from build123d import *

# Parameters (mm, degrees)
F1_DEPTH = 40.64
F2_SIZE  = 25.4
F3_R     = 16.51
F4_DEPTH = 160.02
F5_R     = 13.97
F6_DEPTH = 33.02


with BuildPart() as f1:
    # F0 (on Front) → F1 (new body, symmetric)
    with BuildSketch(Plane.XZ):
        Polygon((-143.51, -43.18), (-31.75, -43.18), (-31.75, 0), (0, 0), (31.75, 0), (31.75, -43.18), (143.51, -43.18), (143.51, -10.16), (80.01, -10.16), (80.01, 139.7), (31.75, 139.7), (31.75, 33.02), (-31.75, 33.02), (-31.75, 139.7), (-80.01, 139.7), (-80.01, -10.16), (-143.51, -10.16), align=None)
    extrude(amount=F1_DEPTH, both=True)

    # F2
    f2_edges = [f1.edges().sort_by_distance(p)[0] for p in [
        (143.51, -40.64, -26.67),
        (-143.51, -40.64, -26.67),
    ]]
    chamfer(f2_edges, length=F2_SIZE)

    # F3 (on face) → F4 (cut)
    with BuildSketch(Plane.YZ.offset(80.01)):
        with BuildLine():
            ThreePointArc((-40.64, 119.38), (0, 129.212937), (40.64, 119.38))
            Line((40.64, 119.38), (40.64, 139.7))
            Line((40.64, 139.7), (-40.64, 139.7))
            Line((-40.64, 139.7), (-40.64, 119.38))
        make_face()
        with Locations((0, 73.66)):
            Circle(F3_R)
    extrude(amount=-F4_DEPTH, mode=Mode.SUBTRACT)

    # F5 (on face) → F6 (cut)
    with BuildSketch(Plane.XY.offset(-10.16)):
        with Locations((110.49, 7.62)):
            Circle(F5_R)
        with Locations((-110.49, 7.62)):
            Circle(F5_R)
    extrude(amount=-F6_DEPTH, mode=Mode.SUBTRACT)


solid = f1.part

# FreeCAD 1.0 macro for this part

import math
import FreeCAD as App
import Part
import Sketcher

V = App.Vector
Q = App.Units.Quantity


def edges_at(feature, points):
    """Names of the edges that pass closest to the given points."""
    edges = feature.Shape.Edges
    near = lambda p: min(range(len(edges)), key=lambda i: edges[i].distToShape(Part.Vertex(*p))[0])
    return sorted({f"Edge{near(p) + 1}" for p in points})

doc = App.newDocument("Part")
body = doc.addObject("PartDesign::Body", "Body")

sketch1 = body.newObject("Sketcher::SketchObject", "Sketch")
sketch1.AttachmentSupport = (doc.getObject("XZ_Plane"), [""])
sketch1.MapMode = "FlatFace"
sketch1.addGeometry(Part.LineSegment(V(-144, -43, 0), V(-32, -43, 0)), False)
sketch1.addGeometry(Part.LineSegment(V(-32, -43, 0), V(-32, 0, 0)), False)
sketch1.addGeometry(Part.LineSegment(V(-32, 0, 0), V(32, 0, 0)), False)
sketch1.addGeometry(Part.LineSegment(V(32, 0, 0), V(32, -43, 0)), False)
sketch1.addGeometry(Part.LineSegment(V(32, -43, 0), V(144, -43, 0)), False)
sketch1.addGeometry(Part.LineSegment(V(144, -43, 0), V(144, -10, 0)), False)
sketch1.addGeometry(Part.LineSegment(V(144, -10, 0), V(80, -10, 0)), False)
sketch1.addGeometry(Part.LineSegment(V(80, -10, 0), V(80, 140, 0)), False)
sketch1.addGeometry(Part.LineSegment(V(80, 140, 0), V(32, 140, 0)), False)
sketch1.addGeometry(Part.LineSegment(V(32, 140, 0), V(32, 33, 0)), False)
sketch1.addGeometry(Part.LineSegment(V(32, 33, 0), V(-32, 33, 0)), False)
sketch1.addGeometry(Part.LineSegment(V(-32, 33, 0), V(-32, 140, 0)), False)
sketch1.addGeometry(Part.LineSegment(V(-32, 140, 0), V(-80, 140, 0)), False)
sketch1.addGeometry(Part.LineSegment(V(-80, 140, 0), V(-80, -10, 0)), False)
sketch1.addGeometry(Part.LineSegment(V(-80, -10, 0), V(-144, -10, 0)), False)
sketch1.addGeometry(Part.LineSegment(V(-144, -10, 0), V(-144, -43, 0)), False)
sketch1.addConstraint(Sketcher.Constraint("Coincident", 0, 2, 1, 1))
sketch1.addConstraint(Sketcher.Constraint("Coincident", 1, 2, 2, 1))
sketch1.addConstraint(Sketcher.Constraint("Coincident", 2, 2, 3, 1))
sketch1.addConstraint(Sketcher.Constraint("Coincident", 3, 2, 4, 1))
sketch1.addConstraint(Sketcher.Constraint("Coincident", 4, 2, 5, 1))
sketch1.addConstraint(Sketcher.Constraint("Coincident", 5, 2, 6, 1))
sketch1.addConstraint(Sketcher.Constraint("Coincident", 6, 2, 7, 1))
sketch1.addConstraint(Sketcher.Constraint("Coincident", 7, 2, 8, 1))
sketch1.addConstraint(Sketcher.Constraint("Coincident", 8, 2, 9, 1))
sketch1.addConstraint(Sketcher.Constraint("Coincident", 9, 2, 10, 1))
sketch1.addConstraint(Sketcher.Constraint("Coincident", 10, 2, 11, 1))
sketch1.addConstraint(Sketcher.Constraint("Coincident", 11, 2, 12, 1))
sketch1.addConstraint(Sketcher.Constraint("Coincident", 12, 2, 13, 1))
sketch1.addConstraint(Sketcher.Constraint("Coincident", 13, 2, 14, 1))
sketch1.addConstraint(Sketcher.Constraint("Coincident", 14, 2, 15, 1))
sketch1.addConstraint(Sketcher.Constraint("Coincident", 15, 2, 0, 1))
sketch1.addConstraint(Sketcher.Constraint("Horizontal", 0))
sketch1.addConstraint(Sketcher.Constraint("Vertical", 1))
sketch1.addConstraint(Sketcher.Constraint("Horizontal", 2))
sketch1.addConstraint(Sketcher.Constraint("Vertical", 3))
sketch1.addConstraint(Sketcher.Constraint("Horizontal", 4))
sketch1.addConstraint(Sketcher.Constraint("Vertical", 5))
sketch1.addConstraint(Sketcher.Constraint("Horizontal", 6))
sketch1.addConstraint(Sketcher.Constraint("Vertical", 7))
sketch1.addConstraint(Sketcher.Constraint("Horizontal", 8))
sketch1.addConstraint(Sketcher.Constraint("Vertical", 9))
sketch1.addConstraint(Sketcher.Constraint("Horizontal", 10))
sketch1.addConstraint(Sketcher.Constraint("Vertical", 11))
sketch1.addConstraint(Sketcher.Constraint("Horizontal", 12))
sketch1.addConstraint(Sketcher.Constraint("Vertical", 13))
sketch1.addConstraint(Sketcher.Constraint("Horizontal", 14))
sketch1.addConstraint(Sketcher.Constraint("Vertical", 15))
sketch1.addConstraint(Sketcher.Constraint("Symmetric", 1, 2, 2, 2, -1, 1))
sketch1.addConstraint(Sketcher.Constraint("Symmetric", 8, 2, 11, 2, -2))
sketch1.addConstraint(Sketcher.Constraint("Symmetric", 6, 2, 13, 2, -2))
sketch1.addConstraint(Sketcher.Constraint("Symmetric", 4, 2, 15, 2, -2))
sketch1.addConstraint(Sketcher.Constraint("Vertical", 3, 2, 8, 2))
sketch1.addConstraint(Sketcher.Constraint("Equal", 2, 6))
sketch1.addConstraint(Sketcher.Constraint("DistanceX", 0, 1, 0, 2, Q("4.4 in")))
sketch1.addConstraint(Sketcher.Constraint("DistanceX", 2, 1, 2, 2, Q("2.5 in")))
sketch1.addConstraint(Sketcher.Constraint("DistanceY", 1, 1, 1, 2, Q("1.7 in")))
sketch1.addConstraint(Sketcher.Constraint("DistanceY", 5, 1, 5, 2, Q("1.3 in")))
sketch1.addConstraint(Sketcher.Constraint("DistanceY", 7, 1, 7, 2, Q("5.9 in")))
sketch1.addConstraint(Sketcher.Constraint("DistanceY", 9, 2, 9, 1, Q("4.2 in")))
pad1 = body.newObject("PartDesign::Pad", "Pad")
pad1.Profile = sketch1
pad1.Length = Q("3.2 in")
pad1.Midplane = True
doc.recompute()

chamfer = body.newObject("PartDesign::Chamfer", "Chamfer")
chamfer.Base = (pad1, edges_at(pad1, [(143.51, -40.64, -26.67), (-143.51, -40.64, -26.67)]))
chamfer.Size = Q("1 in")

sketch2 = body.newObject("Sketcher::SketchObject", "Sketch001")
sketch2.AttachmentSupport = (doc.getObject("YZ_Plane"), [""])
sketch2.MapMode = "FlatFace"
sketch2.AttachmentOffset = App.Placement(V(0, 0, 3.15 * 25.4), App.Rotation())
sketch2.addGeometry(Part.ArcOfCircle(Part.Circle(V(0, 40, 0), V(0, 0, 1), 89), math.radians(63), math.radians(117)), False)
sketch2.addGeometry(Part.LineSegment(V(41, 119, 0), V(41, 140, 0)), False)
sketch2.addGeometry(Part.LineSegment(V(41, 140, 0), V(-41, 140, 0)), False)
sketch2.addGeometry(Part.LineSegment(V(-41, 140, 0), V(-41, 119, 0)), False)
sketch2.addGeometry(Part.Circle(V(0, 74, 0), V(0, 0, 1), 17), False)
sketch2.addConstraint(Sketcher.Constraint("Coincident", 0, 1, 1, 1))
sketch2.addConstraint(Sketcher.Constraint("Coincident", 1, 2, 2, 1))
sketch2.addConstraint(Sketcher.Constraint("Coincident", 2, 2, 3, 1))
sketch2.addConstraint(Sketcher.Constraint("Coincident", 3, 2, 0, 2))
sketch2.addConstraint(Sketcher.Constraint("Vertical", 1))
sketch2.addConstraint(Sketcher.Constraint("Horizontal", 2))
sketch2.addConstraint(Sketcher.Constraint("Vertical", 3))
sketch2.addConstraint(Sketcher.Constraint("Symmetric", 0, 1, 3, 2, -2))
sketch2.addConstraint(Sketcher.Constraint("PointOnObject", 4, 3, -2))
sketch2.addConstraint(Sketcher.Constraint("Diameter", 4, Q("1.3 in")))
sketch2.addConstraint(Sketcher.Constraint("Radius", 0, Q("3.5000001 in")))
sketch2.addConstraint(Sketcher.Constraint("DistanceX", 2, 2, 2, 1, Q("3.2 in")))
sketch2.addConstraint(Sketcher.Constraint("DistanceY", 1, 1, 1, 2, Q("0.8 in")))
sketch2.addConstraint(Sketcher.Constraint("DistanceY", -1, 1, 4, 3, Q("2.9 in")))
sketch2.addConstraint(Sketcher.Constraint("DistanceY", -1, 1, 0, 1, Q("4.7 in")))
pocket1 = body.newObject("PartDesign::Pocket", "Pocket")
pocket1.Profile = sketch2
pocket1.Length = Q("6.3 in")

sketch3 = body.newObject("Sketcher::SketchObject", "Sketch002")
sketch3.AttachmentSupport = (doc.getObject("XY_Plane"), [""])
sketch3.MapMode = "FlatFace"
sketch3.AttachmentOffset = App.Placement(V(0, 0, -0.4 * 25.4), App.Rotation())
sketch3.addGeometry(Part.Circle(V(110, 8, 0), V(0, 0, 1), 14), False)
sketch3.addGeometry(Part.Circle(V(-110, 8, 0), V(0, 0, 1), 14), False)
sketch3.addConstraint(Sketcher.Constraint("Equal", 0, 1))
sketch3.addConstraint(Sketcher.Constraint("Symmetric", 0, 3, 1, 3, -2))
sketch3.addConstraint(Sketcher.Constraint("Diameter", 0, Q("1.1 in")))
sketch3.addConstraint(Sketcher.Constraint("DistanceY", -1, 1, 0, 3, Q("0.3 in")))
sketch3.addConstraint(Sketcher.Constraint("DistanceX", 1, 3, 0, 3, Q("8.7 in")))
pocket2 = body.newObject("PartDesign::Pocket", "Pocket001")
pocket2.Profile = sketch3
pocket2.Length = Q("1.3 in")

doc.recompute()
